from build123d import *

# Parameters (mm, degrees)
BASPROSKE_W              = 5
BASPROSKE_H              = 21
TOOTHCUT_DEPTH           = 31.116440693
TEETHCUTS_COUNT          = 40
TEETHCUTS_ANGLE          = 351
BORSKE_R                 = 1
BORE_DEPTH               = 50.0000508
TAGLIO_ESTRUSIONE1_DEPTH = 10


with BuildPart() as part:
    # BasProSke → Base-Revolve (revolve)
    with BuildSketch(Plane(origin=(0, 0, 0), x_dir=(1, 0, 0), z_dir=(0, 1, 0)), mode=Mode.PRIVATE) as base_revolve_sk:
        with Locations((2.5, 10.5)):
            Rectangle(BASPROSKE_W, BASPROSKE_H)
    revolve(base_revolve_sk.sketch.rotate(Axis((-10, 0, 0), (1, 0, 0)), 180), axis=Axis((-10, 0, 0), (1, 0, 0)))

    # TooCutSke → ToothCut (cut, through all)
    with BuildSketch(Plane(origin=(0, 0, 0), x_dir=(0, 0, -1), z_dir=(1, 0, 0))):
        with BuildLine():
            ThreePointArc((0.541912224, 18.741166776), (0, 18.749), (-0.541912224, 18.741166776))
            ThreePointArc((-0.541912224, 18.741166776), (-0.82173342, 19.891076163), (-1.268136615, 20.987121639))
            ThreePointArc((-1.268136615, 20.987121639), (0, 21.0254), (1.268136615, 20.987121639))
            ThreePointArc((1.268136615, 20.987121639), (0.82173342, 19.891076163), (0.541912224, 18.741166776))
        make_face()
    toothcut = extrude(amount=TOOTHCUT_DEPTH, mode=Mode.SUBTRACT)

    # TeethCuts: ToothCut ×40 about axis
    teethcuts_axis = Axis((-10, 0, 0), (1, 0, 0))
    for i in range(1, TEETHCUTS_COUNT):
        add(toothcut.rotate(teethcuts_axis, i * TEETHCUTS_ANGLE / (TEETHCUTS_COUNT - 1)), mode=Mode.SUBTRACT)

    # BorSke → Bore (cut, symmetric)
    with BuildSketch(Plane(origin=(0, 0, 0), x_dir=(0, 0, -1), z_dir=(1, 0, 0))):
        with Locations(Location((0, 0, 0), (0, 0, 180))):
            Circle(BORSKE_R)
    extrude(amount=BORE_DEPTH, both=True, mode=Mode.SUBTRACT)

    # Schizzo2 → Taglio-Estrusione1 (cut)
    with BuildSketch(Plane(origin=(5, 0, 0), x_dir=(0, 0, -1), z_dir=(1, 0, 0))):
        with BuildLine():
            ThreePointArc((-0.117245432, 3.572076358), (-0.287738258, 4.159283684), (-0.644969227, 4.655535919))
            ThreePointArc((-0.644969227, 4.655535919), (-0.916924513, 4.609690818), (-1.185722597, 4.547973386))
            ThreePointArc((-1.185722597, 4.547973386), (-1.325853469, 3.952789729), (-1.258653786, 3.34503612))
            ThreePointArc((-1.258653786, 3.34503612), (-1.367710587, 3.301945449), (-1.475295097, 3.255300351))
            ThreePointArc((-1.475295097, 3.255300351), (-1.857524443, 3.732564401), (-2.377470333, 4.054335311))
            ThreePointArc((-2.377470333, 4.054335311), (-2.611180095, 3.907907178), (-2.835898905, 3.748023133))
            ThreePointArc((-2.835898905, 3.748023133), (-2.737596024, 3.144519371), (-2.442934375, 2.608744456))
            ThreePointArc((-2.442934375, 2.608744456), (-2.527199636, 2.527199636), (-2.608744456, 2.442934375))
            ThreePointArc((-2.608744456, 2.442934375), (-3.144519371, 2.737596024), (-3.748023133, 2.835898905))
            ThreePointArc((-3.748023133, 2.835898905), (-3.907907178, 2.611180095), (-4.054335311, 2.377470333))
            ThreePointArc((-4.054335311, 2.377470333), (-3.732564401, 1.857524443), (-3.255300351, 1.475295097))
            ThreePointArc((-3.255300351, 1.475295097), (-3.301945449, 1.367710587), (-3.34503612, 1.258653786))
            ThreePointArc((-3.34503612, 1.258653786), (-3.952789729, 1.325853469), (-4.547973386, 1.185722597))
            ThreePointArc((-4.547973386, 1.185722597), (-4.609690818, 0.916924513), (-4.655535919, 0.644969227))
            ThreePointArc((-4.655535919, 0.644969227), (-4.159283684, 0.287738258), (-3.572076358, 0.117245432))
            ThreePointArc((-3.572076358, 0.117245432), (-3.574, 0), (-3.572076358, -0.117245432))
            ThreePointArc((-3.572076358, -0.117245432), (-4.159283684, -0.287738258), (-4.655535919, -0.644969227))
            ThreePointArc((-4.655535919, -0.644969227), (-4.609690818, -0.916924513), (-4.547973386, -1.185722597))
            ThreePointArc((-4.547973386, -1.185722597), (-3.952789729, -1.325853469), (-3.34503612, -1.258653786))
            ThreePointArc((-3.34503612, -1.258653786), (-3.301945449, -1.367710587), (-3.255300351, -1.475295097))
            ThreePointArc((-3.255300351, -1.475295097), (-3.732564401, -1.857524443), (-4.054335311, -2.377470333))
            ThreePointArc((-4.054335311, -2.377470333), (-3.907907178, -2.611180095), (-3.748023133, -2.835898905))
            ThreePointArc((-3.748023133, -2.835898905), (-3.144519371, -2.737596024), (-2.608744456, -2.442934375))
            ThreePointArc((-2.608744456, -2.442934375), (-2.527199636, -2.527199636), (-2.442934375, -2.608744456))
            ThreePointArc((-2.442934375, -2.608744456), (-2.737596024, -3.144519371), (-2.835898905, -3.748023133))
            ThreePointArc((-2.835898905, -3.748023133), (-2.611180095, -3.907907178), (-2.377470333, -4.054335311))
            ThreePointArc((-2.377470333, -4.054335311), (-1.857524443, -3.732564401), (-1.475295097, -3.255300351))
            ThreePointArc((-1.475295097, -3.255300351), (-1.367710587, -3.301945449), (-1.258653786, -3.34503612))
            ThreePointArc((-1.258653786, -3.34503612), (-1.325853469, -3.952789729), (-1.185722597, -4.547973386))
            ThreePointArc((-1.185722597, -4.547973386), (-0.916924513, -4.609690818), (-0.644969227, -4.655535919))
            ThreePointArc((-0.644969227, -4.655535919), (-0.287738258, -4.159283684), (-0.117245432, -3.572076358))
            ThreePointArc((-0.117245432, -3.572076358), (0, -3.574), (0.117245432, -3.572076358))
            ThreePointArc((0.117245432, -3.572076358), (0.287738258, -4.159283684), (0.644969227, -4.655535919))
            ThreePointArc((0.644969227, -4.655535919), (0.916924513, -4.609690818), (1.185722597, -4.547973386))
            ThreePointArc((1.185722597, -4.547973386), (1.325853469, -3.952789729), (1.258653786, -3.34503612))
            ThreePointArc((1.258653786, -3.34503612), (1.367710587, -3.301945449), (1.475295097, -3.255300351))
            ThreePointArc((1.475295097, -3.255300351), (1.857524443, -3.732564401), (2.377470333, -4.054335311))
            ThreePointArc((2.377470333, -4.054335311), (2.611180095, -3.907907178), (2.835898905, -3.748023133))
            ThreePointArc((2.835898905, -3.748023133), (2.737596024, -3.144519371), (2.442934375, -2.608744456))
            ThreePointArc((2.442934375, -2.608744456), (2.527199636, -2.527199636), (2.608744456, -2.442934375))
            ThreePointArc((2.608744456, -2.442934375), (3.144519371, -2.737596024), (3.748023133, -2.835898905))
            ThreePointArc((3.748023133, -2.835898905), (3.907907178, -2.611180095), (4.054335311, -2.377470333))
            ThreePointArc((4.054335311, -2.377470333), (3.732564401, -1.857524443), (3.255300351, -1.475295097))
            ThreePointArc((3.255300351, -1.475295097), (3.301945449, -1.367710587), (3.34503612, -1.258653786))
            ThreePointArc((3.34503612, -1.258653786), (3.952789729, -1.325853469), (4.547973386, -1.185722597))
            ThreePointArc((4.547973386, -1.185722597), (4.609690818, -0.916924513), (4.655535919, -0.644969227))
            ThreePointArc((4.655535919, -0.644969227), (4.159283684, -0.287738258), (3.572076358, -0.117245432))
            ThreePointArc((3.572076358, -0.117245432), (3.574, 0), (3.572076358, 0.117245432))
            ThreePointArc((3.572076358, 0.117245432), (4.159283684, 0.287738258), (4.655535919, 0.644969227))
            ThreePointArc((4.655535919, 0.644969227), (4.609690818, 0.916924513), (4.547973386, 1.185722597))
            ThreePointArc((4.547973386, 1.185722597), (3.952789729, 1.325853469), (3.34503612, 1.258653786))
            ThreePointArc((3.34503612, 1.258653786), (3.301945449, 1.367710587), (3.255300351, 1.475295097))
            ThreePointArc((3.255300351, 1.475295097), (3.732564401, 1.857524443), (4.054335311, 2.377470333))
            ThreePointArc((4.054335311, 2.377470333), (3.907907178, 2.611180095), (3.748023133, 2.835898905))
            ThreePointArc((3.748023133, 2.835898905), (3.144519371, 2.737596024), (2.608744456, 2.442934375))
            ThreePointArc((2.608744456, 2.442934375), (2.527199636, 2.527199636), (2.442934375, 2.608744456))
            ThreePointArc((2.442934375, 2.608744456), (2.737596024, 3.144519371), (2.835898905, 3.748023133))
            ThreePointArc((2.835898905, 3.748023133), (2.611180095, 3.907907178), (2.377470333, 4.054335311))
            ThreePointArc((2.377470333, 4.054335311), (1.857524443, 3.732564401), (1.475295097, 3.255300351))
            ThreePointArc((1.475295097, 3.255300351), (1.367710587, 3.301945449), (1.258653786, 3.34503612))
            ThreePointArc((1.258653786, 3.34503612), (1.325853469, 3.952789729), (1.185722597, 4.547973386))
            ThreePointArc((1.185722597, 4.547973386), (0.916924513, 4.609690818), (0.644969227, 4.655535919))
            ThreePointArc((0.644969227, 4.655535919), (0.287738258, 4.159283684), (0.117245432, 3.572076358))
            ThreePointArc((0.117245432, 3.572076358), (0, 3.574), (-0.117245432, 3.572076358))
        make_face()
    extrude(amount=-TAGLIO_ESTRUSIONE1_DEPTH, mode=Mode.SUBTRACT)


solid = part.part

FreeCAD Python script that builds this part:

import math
import FreeCAD as App
import Part
import Sketcher
from FreeCAD import Vector
Q = App.Units.Quantity


def add_polygon(sketch, points):
    """Adds a closed chain of lines whose ends are joined by coincident constraints."""
    first, n = sketch.GeometryCount, len(points)
    for a, b in zip(points, points[1:] + points[:1]):
        sketch.addGeometry(Part.LineSegment(App.Vector(*a, 0), App.Vector(*b, 0)), False)
    for i in range(n):
        sketch.addConstraint(Sketcher.Constraint("Coincident", first + i, 2, first + (i + 1) % n, 1))

doc = App.newDocument("Part")
params = doc.addObject("Spreadsheet::Sheet", "Params")
for row, (alias, value) in enumerate([
    ("sketch1_width", "5 mm"),
    ("sketch1_height", "21 mm"),
    ("revolution_angle", "360 deg"),
    ("sketch2_radius", "8 mm"),
    ("sketch3_diameter", "2 mm"),
    ("pocket2_length", "100.000102 mm"),
    ("sketch4_radius", "1.8 mm"),
    ("sketch4_radius2", "4.7 mm"),
    ("pocket3_length", "10 mm"),
], start=1):
    params.set(f"A{row}", alias)
    params.set(f"B{row}", "=" + value)
    params.setAlias(f"B{row}", alias)

body = doc.addObject("PartDesign::Body", "Body")

# Sketch on XZ plane
sketch1 = body.newObject("Sketcher::SketchObject", "Sketch")
sketch1.AttachmentSupport = (doc.getObject("XZ_Plane"), [""])
sketch1.MapMode = "FlatFace"
add_polygon(sketch1, [(0, -21), (0, 0), (5, 0), (5, -21)])  # lines 0-3
sketch1.addConstraint([
    Sketcher.Constraint("Vertical", 0),
    Sketcher.Constraint("Horizontal", 1),
    Sketcher.Constraint("Vertical", 2),
    Sketcher.Constraint("Horizontal", 3),
    Sketcher.Constraint("Coincident", 0, 2, -1, 1),
    Sketcher.Constraint("DistanceX", 1, 1, 1, 2, Q("5 mm")),
    Sketcher.Constraint("DistanceY", 0, 1, 0, 2, Q("21 mm")),
])
sketch1.setExpression("Constraints[9]", "Params.sketch1_width")
sketch1.setExpression("Constraints[10]", "Params.sketch1_height")
revolution = body.newObject("PartDesign::Revolution", "Revolution")
revolution.Profile = sketch1
revolution.ReferenceAxis = (sketch1, ["H_Axis"])
revolution.setExpression("Angle", "Params.revolution_angle")

# Sketch on YZ plane
sketch2 = body.newObject("Sketcher::SketchObject", "Sketch001")
sketch2.AttachmentSupport = (doc.getObject("YZ_Plane"), [""])
sketch2.MapMode = "FlatFace"
sketch2.addGeometry([
    Part.ArcOfCircle(Part.Circle(Vector(0, 0, 0), Vector(0, 0, 1), 18.7), math.radians(-1.66), math.radians(1.66)),
    Part.ArcOfCircle(Part.Circle(Vector(17.4, -8.4, 0), Vector(0, 0, 1), 8), math.radians(63.6), math.radians(80.57)),
    Part.ArcOfCircle(Part.Circle(Vector(0, 0, 0), Vector(0, 0, 1), 21), math.radians(-3.46), math.radians(3.46)),
    Part.ArcOfCircle(Part.Circle(Vector(17.4, 8.4, 0), Vector(0, 0, 1), 8), math.radians(-80.57), math.radians(-63.6)),
], False)
sketch2.addConstraint([
    Sketcher.Constraint("Coincident", 0, 1, 1, 2),
    Sketcher.Constraint("Coincident", 1, 1, 2, 1),
    Sketcher.Constraint("Coincident", 2, 2, 3, 2),
    Sketcher.Constraint("Coincident", 3, 1, 0, 2),
    Sketcher.Constraint("Coincident", 0, 3, -1, 1),
    Sketcher.Constraint("Coincident", 2, 3, -1, 1),
    Sketcher.Constraint("Equal", 1, 3),
    Sketcher.Constraint("Symmetric", 1, 3, 3, 3, -1),
    Sketcher.Constraint("Radius", 1, Q("8 mm")),
    Sketcher.Constraint("Radius", 0, Q("18.748999 mm")),
    Sketcher.Constraint("Radius", 2, Q("21.0254 mm")),
    Sketcher.Constraint("DistanceX", 1, 3, 0, 1, Q("1.311401 mm")),
    Sketcher.Constraint("DistanceX", -1, 1, 1, 1, Q("20.987122 mm")),
])
sketch2.setExpression("Constraints[8]", "Params.sketch2_radius")
pocket1 = body.newObject("PartDesign::Pocket", "Pocket")
pocket1.Profile = sketch2
pocket1.Type = "ThroughAll"
pocket1.Reversed = True
doc.recompute()

polarpattern = body.newObject("PartDesign::PolarPattern", "PolarPattern")
polarpattern.Originals = [pocket1]
polarpattern.Axis = (doc.getObject("X_Axis"), [""])
polarpattern.Angle = 360
polarpattern.Occurrences = 40
body.Tip = polarpattern

# Sketch on YZ plane
sketch3 = body.newObject("Sketcher::SketchObject", "Sketch002")
sketch3.AttachmentSupport = (doc.getObject("YZ_Plane"), [""])
sketch3.MapMode = "FlatFace"
sketch3.addGeometry(Part.Circle(Vector(0, 0, 0), Vector(0, 0, 1), 1), False)
sketch3.addConstraint([
    Sketcher.Constraint("Coincident", 0, 3, -1, 1),
    Sketcher.Constraint("Diameter", 0, Q("2 mm")),
])
sketch3.setExpression("Constraints[1]", "Params.sketch3_diameter")
pocket2 = body.newObject("PartDesign::Pocket", "Pocket001")
pocket2.Profile = sketch3
pocket2.setExpression("Length", "Params.pocket2_length")
pocket2.Midplane = True

# Sketch on YZ plane
sketch4 = body.newObject("Sketcher::SketchObject", "Sketch003")
sketch4.AttachmentSupport = (doc.getObject("YZ_Plane"), [""])
sketch4.MapMode = "FlatFace"
sketch4.AttachmentOffset = App.Placement(Vector(0, 0, 5), App.Rotation())
sketch4.addGeometry([
    Part.ArcOfCircle(Part.Circle(Vector(3.37, 1.91, 0), Vector(0, 0, 1), 1.8), math.radians(-84), math.radians(-44)),  # 0
    Part.ArcOfCircle(Part.Circle(Vector(0, 0, 0), Vector(0, 0, 1), 4.7), math.radians(7.89), math.radians(14.61)),  # 1
    Part.ArcOfCircle(Part.Circle(Vector(3.84, -0.47, 0), Vector(0, 0, 1), 1.8), math.radians(67), math.radians(106)),  # 2
    Part.ArcOfCircle(Part.Circle(Vector(0, 0, 0), Vector(0, 0, 1), 3.57), math.radians(20.62), math.radians(24.38)),  # 3
    Part.ArcOfCircle(Part.Circle(Vector(2.39, 3.05, 0), Vector(0, 0, 1), 1.8), math.radians(-61), math.radians(-22)),  # 4
    Part.ArcOfCircle(Part.Circle(Vector(0, 0, 0), Vector(0, 0, 1), 4.7), math.radians(30.39), math.radians(37.11)),  # 5
    Part.ArcOfCircle(Part.Circle(Vector(3.73, 1.04, 0), Vector(0, 0, 1), 1.8), math.radians(89), math.radians(129)),  # 6
    Part.ArcOfCircle(Part.Circle(Vector(0, 0, 0), Vector(0, 0, 1), 3.57), math.radians(43.12), math.radians(46.88)),  # 7
    Part.ArcOfCircle(Part.Circle(Vector(1.04, 3.73, 0), Vector(0, 0, 1), 1.8), math.radians(-39), math.radians(1)),  # 8
    Part.ArcOfCircle(Part.Circle(Vector(0, 0, 0), Vector(0, 0, 1), 4.7), math.radians(52.89), math.radians(59.61)),  # 9
    Part.ArcOfCircle(Part.Circle(Vector(3.05, 2.39, 0), Vector(0, 0, 1), 1.8), math.radians(112), math.radians(151)),  # 10
    Part.ArcOfCircle(Part.Circle(Vector(0, 0, 0), Vector(0, 0, 1), 3.57), math.radians(65.62), math.radians(69.38)),  # 11
    Part.ArcOfCircle(Part.Circle(Vector(-0.47, 3.84, 0), Vector(0, 0, 1), 1.8), math.radians(-16), math.radians(23)),  # 12
    Part.ArcOfCircle(Part.Circle(Vector(0, 0, 0), Vector(0, 0, 1), 4.7), math.radians(75.39), math.radians(82.11)),  # 13
    Part.ArcOfCircle(Part.Circle(Vector(1.91, 3.37, 0), Vector(0, 0, 1), 1.8), math.radians(134), math.radians(174)),  # 14
    Part.ArcOfCircle(Part.Circle(Vector(0, 0, 0), Vector(0, 0, 1), 3.57), math.radians(88.12), math.radians(91.88)),  # 15
    Part.ArcOfCircle(Part.Circle(Vector(-1.91, 3.37, 0), Vector(0, 0, 1), 1.8), math.radians(6), math.radians(46)),  # 16
    Part.ArcOfCircle(Part.Circle(Vector(0, 0, 0), Vector(0, 0, 1), 4.7), math.radians(97.89), math.radians(104.61)),  # 17
    Part.ArcOfCircle(Part.Circle(Vector(0.47, 3.84, 0), Vector(0, 0, 1), 1.8), math.radians(157), math.radians(196)),  # 18
    Part.ArcOfCircle(Part.Circle(Vector(0, 0, 0), Vector(0, 0, 1), 3.57), math.radians(110.62), math.radians(114.38)),  # 19
    Part.ArcOfCircle(Part.Circle(Vector(-3.05, 2.39, 0), Vector(0, 0, 1), 1.8), math.radians(29), math.radians(68)),  # 20
    Part.ArcOfCircle(Part.Circle(Vector(0, 0, 0), Vector(0, 0, 1), 4.7), math.radians(120.39), math.radians(127.11)),  # 21
    Part.ArcOfCircle(Part.Circle(Vector(-1.04, 3.73, 0), Vector(0, 0, 1), 1.8), math.radians(179), math.radians(219)),  # 22
    Part.ArcOfCircle(Part.Circle(Vector(0, 0, 0), Vector(0, 0, 1), 3.57), math.radians(133.12), math.radians(136.88)),  # 23
    Part.ArcOfCircle(Part.Circle(Vector(-3.73, 1.04, 0), Vector(0, 0, 1), 1.8), math.radians(51), math.radians(91)),  # 24
    Part.ArcOfCircle(Part.Circle(Vector(0, 0, 0), Vector(0, 0, 1), 4.7), math.radians(142.89), math.radians(149.61)),  # 25
    Part.ArcOfCircle(Part.Circle(Vector(-2.39, 3.05, 0), Vector(0, 0, 1), 1.8), math.radians(-158), math.radians(-119)),  # 26
    Part.ArcOfCircle(Part.Circle(Vector(0, 0, 0), Vector(0, 0, 1), 3.57), math.radians(155.62), math.radians(159.38)),  # 27
    Part.ArcOfCircle(Part.Circle(Vector(-3.84, -0.47, 0), Vector(0, 0, 1), 1.8), math.radians(74), math.radians(113)),  # 28
    Part.ArcOfCircle(Part.Circle(Vector(0, 0, 0), Vector(0, 0, 1), 4.7), math.radians(165.39), math.radians(172.11)),  # 29
    Part.ArcOfCircle(Part.Circle(Vector(-3.37, 1.91, 0), Vector(0, 0, 1), 1.8), math.radians(-136), math.radians(-96)),  # 30
    Part.ArcOfCircle(Part.Circle(Vector(0, 0, 0), Vector(0, 0, 1), 3.57), math.radians(178.12), math.radians(181.88)),  # 31
    Part.ArcOfCircle(Part.Circle(Vector(-3.37, -1.91, 0), Vector(0, 0, 1), 1.8), math.radians(96), math.radians(136)),  # 32
    Part.ArcOfCircle(Part.Circle(Vector(0, 0, 0), Vector(0, 0, 1), 4.7), math.radians(-172.11), math.radians(-165.39)),  # 33
    Part.ArcOfCircle(Part.Circle(Vector(-3.84, 0.47, 0), Vector(0, 0, 1), 1.8), math.radians(-113), math.radians(-74)),  # 34
    Part.ArcOfCircle(Part.Circle(Vector(0, 0, 0), Vector(0, 0, 1), 3.57), math.radians(-159.38), math.radians(-155.62)),  # 35
    Part.ArcOfCircle(Part.Circle(Vector(-2.39, -3.05, 0), Vector(0, 0, 1), 1.8), math.radians(119), math.radians(158)),  # 36
    Part.ArcOfCircle(Part.Circle(Vector(0, 0, 0), Vector(0, 0, 1), 4.7), math.radians(-149.61), math.radians(-142.89)),  # 37
    Part.ArcOfCircle(Part.Circle(Vector(-3.73, -1.04, 0), Vector(0, 0, 1), 1.8), math.radians(-91), math.radians(-51)),  # 38
    Part.ArcOfCircle(Part.Circle(Vector(0, 0, 0), Vector(0, 0, 1), 3.57), math.radians(-136.88), math.radians(-133.12)),  # 39
    Part.ArcOfCircle(Part.Circle(Vector(-1.04, -3.73, 0), Vector(0, 0, 1), 1.8), math.radians(141), math.radians(181)),  # 40
    Part.ArcOfCircle(Part.Circle(Vector(0, 0, 0), Vector(0, 0, 1), 4.7), math.radians(-127.11), math.radians(-120.39)),  # 41
    Part.ArcOfCircle(Part.Circle(Vector(-3.05, -2.39, 0), Vector(0, 0, 1), 1.8), math.radians(-68), math.radians(-29)),  # 42
    Part.ArcOfCircle(Part.Circle(Vector(0, 0, 0), Vector(0, 0, 1), 3.57), math.radians(-114.38), math.radians(-110.62)),  # 43
    Part.ArcOfCircle(Part.Circle(Vector(0.47, -3.84, 0), Vector(0, 0, 1), 1.8), math.radians(164), math.radians(203)),  # 44
    Part.ArcOfCircle(Part.Circle(Vector(0, 0, 0), Vector(0, 0, 1), 4.7), math.radians(-104.61), math.radians(-97.89)),  # 45
    Part.ArcOfCircle(Part.Circle(Vector(-1.91, -3.37, 0), Vector(0, 0, 1), 1.8), math.radians(-46), math.radians(-6)),  # 46
    Part.ArcOfCircle(Part.Circle(Vector(0, 0, 0), Vector(0, 0, 1), 3.57), math.radians(-91.88), math.radians(-88.12)),  # 47
    Part.ArcOfCircle(Part.Circle(Vector(1.91, -3.37, 0), Vector(0, 0, 1), 1.8), math.radians(-174), math.radians(-134)),  # 48
    Part.ArcOfCircle(Part.Circle(Vector(0, 0, 0), Vector(0, 0, 1), 4.7), math.radians(-82.11), math.radians(-75.39)),  # 49
    Part.ArcOfCircle(Part.Circle(Vector(-0.47, -3.84, 0), Vector(0, 0, 1), 1.8), math.radians(-23), math.radians(16)),  # 50
    Part.ArcOfCircle(Part.Circle(Vector(0, 0, 0), Vector(0, 0, 1), 3.57), math.radians(-69.38), math.radians(-65.62)),  # 51
    Part.ArcOfCircle(Part.Circle(Vector(3.05, -2.39, 0), Vector(0, 0, 1), 1.8), math.radians(-151), math.radians(-112)),  # 52
    Part.ArcOfCircle(Part.Circle(Vector(0, 0, 0), Vector(0, 0, 1), 4.7), math.radians(-59.61), math.radians(-52.89)),  # 53
    Part.ArcOfCircle(Part.Circle(Vector(1.04, -3.73, 0), Vector(0, 0, 1), 1.8), math.radians(-1), math.radians(39)),  # 54
    Part.ArcOfCircle(Part.Circle(Vector(0, 0, 0), Vector(0, 0, 1), 3.57), math.radians(-46.88), math.radians(-43.12)),  # 55
    Part.ArcOfCircle(Part.Circle(Vector(3.73, -1.04, 0), Vector(0, 0, 1), 1.8), math.radians(-129), math.radians(-89)),  # 56
    Part.ArcOfCircle(Part.Circle(Vector(0, 0, 0), Vector(0, 0, 1), 4.7), math.radians(-37.11), math.radians(-30.39)),  # 57
    Part.ArcOfCircle(Part.Circle(Vector(2.39, -3.05, 0), Vector(0, 0, 1), 1.8), math.radians(22), math.radians(61)),  # 58
    Part.ArcOfCircle(Part.Circle(Vector(0, 0, 0), Vector(0, 0, 1), 3.57), math.radians(-24.38), math.radians(-20.62)),  # 59
    Part.ArcOfCircle(Part.Circle(Vector(3.84, 0.47, 0), Vector(0, 0, 1), 1.8), math.radians(-106), math.radians(-67)),  # 60
    Part.ArcOfCircle(Part.Circle(Vector(0, 0, 0), Vector(0, 0, 1), 4.7), math.radians(-14.61), math.radians(-7.89)),  # 61
    Part.ArcOfCircle(Part.Circle(Vector(3.37, -1.91, 0), Vector(0, 0, 1), 1.8), math.radians(44), math.radians(84)),  # 62
    Part.ArcOfCircle(Part.Circle(Vector(0, 0, 0), Vector(0, 0, 1), 3.57), math.radians(-1.88), math.radians(1.88)),  # 63
], False)
sketch4.addConstraint([
    Sketcher.Constraint("Coincident", 0, 2, 1, 1),
    Sketcher.Constraint("Coincident", 1, 2, 2, 1),
    Sketcher.Constraint("Coincident", 2, 2, 3, 1),
    Sketcher.Constraint("Coincident", 3, 2, 4, 1),
    Sketcher.Constraint("Coincident", 4, 2, 5, 1),
    Sketcher.Constraint("Coincident", 5, 2, 6, 1),
    Sketcher.Constraint("Coincident", 6, 2, 7, 1),
    Sketcher.Constraint("Coincident", 7, 2, 8, 1),
    Sketcher.Constraint("Coincident", 8, 2, 9, 1),
    Sketcher.Constraint("Coincident", 9, 2, 10, 1),
    Sketcher.Constraint("Coincident", 10, 2, 11, 1),
    Sketcher.Constraint("Coincident", 11, 2, 12, 1),
    Sketcher.Constraint("Coincident", 12, 2, 13, 1),
    Sketcher.Constraint("Coincident", 13, 2, 14, 1),
    Sketcher.Constraint("Coincident", 14, 2, 15, 1),
    Sketcher.Constraint("Coincident", 15, 2, 16, 1),
    Sketcher.Constraint("Coincident", 16, 2, 17, 1),
    Sketcher.Constraint("Coincident", 17, 2, 18, 1),
    Sketcher.Constraint("Coincident", 18, 2, 19, 1),
    Sketcher.Constraint("Coincident", 19, 2, 20, 1),
    Sketcher.Constraint("Coincident", 20, 2, 21, 1),
    Sketcher.Constraint("Coincident", 21, 2, 22, 1),
    Sketcher.Constraint("Coincident", 22, 2, 23, 1),
    Sketcher.Constraint("Coincident", 23, 2, 24, 1),
    Sketcher.Constraint("Coincident", 24, 2, 25, 1),
    Sketcher.Constraint("Coincident", 25, 2, 26, 1),
    Sketcher.Constraint("Coincident", 26, 2, 27, 1),
    Sketcher.Constraint("Coincident", 27, 2, 28, 1),
    Sketcher.Constraint("Coincident", 28, 2, 29, 1),
    Sketcher.Constraint("Coincident", 29, 2, 30, 1),
    Sketcher.Constraint("Coincident", 30, 2, 31, 1),
    Sketcher.Constraint("Coincident", 31, 2, 32, 1),
    Sketcher.Constraint("Coincident", 32, 2, 33, 1),
    Sketcher.Constraint("Coincident", 33, 2, 34, 1),
    Sketcher.Constraint("Coincident", 34, 2, 35, 1),
    Sketcher.Constraint("Coincident", 35, 2, 36, 1),
    Sketcher.Constraint("Coincident", 36, 2, 37, 1),
    Sketcher.Constraint("Coincident", 37, 2, 38, 1),
    Sketcher.Constraint("Coincident", 38, 2, 39, 1),
    Sketcher.Constraint("Coincident", 39, 2, 40, 1),
    Sketcher.Constraint("Coincident", 40, 2, 41, 1),
    Sketcher.Constraint("Coincident", 41, 2, 42, 1),
    Sketcher.Constraint("Coincident", 42, 2, 43, 1),
    Sketcher.Constraint("Coincident", 43, 2, 44, 1),
    Sketcher.Constraint("Coincident", 44, 2, 45, 1),
    Sketcher.Constraint("Coincident", 45, 2, 46, 1),
    Sketcher.Constraint("Coincident", 46, 2, 47, 1),
    Sketcher.Constraint("Coincident", 47, 2, 48, 1),
    Sketcher.Constraint("Coincident", 48, 2, 49, 1),
    Sketcher.Constraint("Coincident", 49, 2, 50, 1),
    Sketcher.Constraint("Coincident", 50, 2, 51, 1),
    Sketcher.Constraint("Coincident", 51, 2, 52, 1),
    Sketcher.Constraint("Coincident", 52, 2, 53, 1),
    Sketcher.Constraint("Coincident", 53, 2, 54, 1),
    Sketcher.Constraint("Coincident", 54, 2, 55, 1),
    Sketcher.Constraint("Coincident", 55, 2, 56, 1),
    Sketcher.Constraint("Coincident", 56, 2, 57, 1),
    Sketcher.Constraint("Coincident", 57, 2, 58, 1),
    Sketcher.Constraint("Coincident", 58, 2, 59, 1),
    Sketcher.Constraint("Coincident", 59, 2, 60, 1),
    Sketcher.Constraint("Coincident", 60, 2, 61, 1),
    Sketcher.Constraint("Coincident", 61, 2, 62, 1),
    Sketcher.Constraint("Coincident", 62, 2, 63, 1),
    Sketcher.Constraint("Coincident", 63, 2, 0, 1),
    Sketcher.Constraint("Coincident", 1, 3, -1, 1),
    Sketcher.Constraint("Coincident", 3, 3, -1, 1),
    Sketcher.Constraint("Coincident", 5, 3, -1, 1),
    Sketcher.Constraint("Coincident", 7, 3, -1, 1),
    Sketcher.Constraint("Coincident", 9, 3, -1, 1),
    Sketcher.Constraint("Coincident", 11, 3, -1, 1),
    Sketcher.Constraint("Coincident", 13, 3, -1, 1),
    Sketcher.Constraint("Coincident", 15, 3, -1, 1),
    Sketcher.Constraint("Coincident", 17, 3, -1, 1),
    Sketcher.Constraint("Coincident", 19, 3, -1, 1),
    Sketcher.Constraint("Coincident", 21, 3, -1, 1),
    Sketcher.Constraint("Coincident", 23, 3, -1, 1),
    Sketcher.Constraint("Coincident", 25, 3, -1, 1),
    Sketcher.Constraint("Coincident", 27, 3, -1, 1),
    Sketcher.Constraint("Coincident", 29, 3, -1, 1),
    Sketcher.Constraint("Coincident", 31, 3, -1, 1),
    Sketcher.Constraint("Coincident", 33, 3, -1, 1),
    Sketcher.Constraint("Coincident", 35, 3, -1, 1),
    Sketcher.Constraint("Coincident", 37, 3, -1, 1),
    Sketcher.Constraint("Coincident", 39, 3, -1, 1),
    Sketcher.Constraint("Coincident", 41, 3, -1, 1),
    Sketcher.Constraint("Coincident", 43, 3, -1, 1),
    Sketcher.Constraint("Coincident", 45, 3, -1, 1),
    Sketcher.Constraint("Coincident", 47, 3, -1, 1),
    Sketcher.Constraint("Coincident", 49, 3, -1, 1),
    Sketcher.Constraint("Coincident", 51, 3, -1, 1),
    Sketcher.Constraint("Coincident", 53, 3, -1, 1),
    Sketcher.Constraint("Coincident", 55, 3, -1, 1),
    Sketcher.Constraint("Coincident", 57, 3, -1, 1),
    Sketcher.Constraint("Coincident", 59, 3, -1, 1),
    Sketcher.Constraint("Coincident", 61, 3, -1, 1),
    Sketcher.Constraint("Coincident", 63, 3, -1, 1),
    Sketcher.Constraint("Equal", 0, 2),
    Sketcher.Constraint("Equal", 2, 4),
    Sketcher.Constraint("Equal", 1, 5),
    Sketcher.Constraint("Equal", 4, 6),
    Sketcher.Constraint("Equal", 3, 7),
    Sketcher.Constraint("Equal", 6, 8),
    Sketcher.Constraint("Equal", 5, 9),
    Sketcher.Constraint("Equal", 8, 10),
    Sketcher.Constraint("Equal", 7, 11),
    Sketcher.Constraint("Equal", 10, 12),
    Sketcher.Constraint("Equal", 9, 13),
    Sketcher.Constraint("Equal", 12, 14),
    Sketcher.Constraint("Equal", 11, 15),
    Sketcher.Constraint("Equal", 14, 16),
    Sketcher.Constraint("Equal", 13, 17),
    Sketcher.Constraint("Equal", 16, 18),
    Sketcher.Constraint("Equal", 15, 19),
    Sketcher.Constraint("Equal", 18, 20),
    Sketcher.Constraint("Equal", 17, 21),
    Sketcher.Constraint("Equal", 20, 22),
    Sketcher.Constraint("Equal", 19, 23),
    Sketcher.Constraint("Equal", 22, 24),
    Sketcher.Constraint("Equal", 21, 25),
    Sketcher.Constraint("Equal", 24, 26),
    Sketcher.Constraint("Equal", 23, 27),
    Sketcher.Constraint("Equal", 26, 28),
    Sketcher.Constraint("Equal", 25, 29),
    Sketcher.Constraint("Equal", 28, 30),
    Sketcher.Constraint("Equal", 27, 31),
    Sketcher.Constraint("Equal", 30, 32),
    Sketcher.Constraint("Equal", 29, 33),
    Sketcher.Constraint("Equal", 32, 34),
    Sketcher.Constraint("Equal", 31, 35),
    Sketcher.Constraint("Equal", 34, 36),
    Sketcher.Constraint("Equal", 33, 37),
    Sketcher.Constraint("Equal", 36, 38),
    Sketcher.Constraint("Equal", 35, 39),
    Sketcher.Constraint("Equal", 38, 40),
    Sketcher.Constraint("Equal", 37, 41),
    Sketcher.Constraint("Equal", 40, 42),
    Sketcher.Constraint("Equal", 39, 43),
    Sketcher.Constraint("Equal", 42, 44),
    Sketcher.Constraint("Equal", 41, 45),
    Sketcher.Constraint("Equal", 44, 46),
    Sketcher.Constraint("Equal", 43, 47),
    Sketcher.Constraint("Equal", 46, 48),
    Sketcher.Constraint("Equal", 45, 49),
    Sketcher.Constraint("Equal", 48, 50),
    Sketcher.Constraint("Equal", 47, 51),
    Sketcher.Constraint("Equal", 50, 52),
    Sketcher.Constraint("Equal", 49, 53),
    Sketcher.Constraint("Equal", 52, 54),
    Sketcher.Constraint("Equal", 51, 55),
    Sketcher.Constraint("Equal", 54, 56),
    Sketcher.Constraint("Equal", 53, 57),
    Sketcher.Constraint("Equal", 56, 58),
    Sketcher.Constraint("Equal", 55, 59),
    Sketcher.Constraint("Equal", 58, 60),
    Sketcher.Constraint("Equal", 57, 61),
    Sketcher.Constraint("Equal", 60, 62),
    Sketcher.Constraint("Equal", 59, 63),
    Sketcher.Constraint("Symmetric", 0, 3, 32, 3, -1, 1),
    Sketcher.Constraint("Symmetric", 2, 3, 34, 3, -1, 1),
    Sketcher.Constraint("Symmetric", 4, 3, 36, 3, -1, 1),
    Sketcher.Constraint("Symmetric", 6, 3, 38, 3, -1, 1),
    Sketcher.Constraint("Symmetric", 8, 3, 40, 3, -1, 1),
    Sketcher.Constraint("Symmetric", 10, 3, 42, 3, -1, 1),
    Sketcher.Constraint("Symmetric", 12, 3, 44, 3, -1, 1),
    Sketcher.Constraint("Symmetric", 14, 3, 46, 3, -1, 1),
    Sketcher.Constraint("Symmetric", 16, 3, 48, 3, -1, 1),
    Sketcher.Constraint("Symmetric", 18, 3, 50, 3, -1, 1),
    Sketcher.Constraint("Symmetric", 20, 3, 52, 3, -1, 1),
    Sketcher.Constraint("Symmetric", 22, 3, 54, 3, -1, 1),
    Sketcher.Constraint("Symmetric", 24, 3, 56, 3, -1, 1),
    Sketcher.Constraint("Symmetric", 26, 3, 58, 3, -1, 1),
    Sketcher.Constraint("Symmetric", 28, 3, 60, 3, -1, 1),
    Sketcher.Constraint("Symmetric", 30, 3, 62, 3, -1, 1),
    Sketcher.Constraint("Symmetric", 14, 3, 16, 3, -2),
    Sketcher.Constraint("Symmetric", 12, 3, 18, 3, -2),
    Sketcher.Constraint("Symmetric", 10, 3, 20, 3, -2),
    Sketcher.Constraint("Symmetric", 8, 3, 22, 3, -2),
    Sketcher.Constraint("Symmetric", 6, 3, 24, 3, -2),
    Sketcher.Constraint("Symmetric", 4, 3, 26, 3, -2),
    Sketcher.Constraint("Symmetric", 2, 3, 28, 3, -2),
    Sketcher.Constraint("Symmetric", 0, 3, 30, 3, -2),
    Sketcher.Constraint("Radius", 0, Q("1.8 mm")),
    Sketcher.Constraint("Radius", 1, Q("4.7 mm")),
    Sketcher.Constraint("Radius", 3, Q("3.574 mm")),
    Sketcher.Constraint("DistanceX", -1, 1, 3, 2, Q("3.2553 mm")),
    Sketcher.Constraint("DistanceY", -1, 1, 5, 2, Q("2.835899 mm")),
    Sketcher.Constraint("DistanceX", -1, 1, 8, 2, Q("2.835899 mm")),
    Sketcher.Constraint("DistanceY", -1, 1, 10, 2, Q("3.2553 mm")),
    Sketcher.Constraint("DistanceX", -1, 1, 0, 3, Q("3.371078 mm")),
    Sketcher.Constraint("DistanceX", -1, 1, 2, 3, Q("3.84386 mm")),
    Sketcher.Constraint("DistanceX", -1, 1, 4, 3, Q("2.38508 mm")),
    Sketcher.Constraint("DistanceX", -1, 1, 6, 3, Q("3.731449 mm")),
    Sketcher.Constraint("DistanceY", -1, 1, 8, 3, Q("3.731449 mm")),
    Sketcher.Constraint("DistanceX", -1, 1, 10, 3, Q("3.050959 mm")),
    Sketcher.Constraint("DistanceY", -1, 1, 12, 3, Q("3.84386 mm")),
    Sketcher.Constraint("DistanceY", -1, 1, 14, 3, Q("3.371078 mm")),
    Sketcher.Constraint("DistanceY", -1, 1, 0, 2, Q("0.644969 mm")),
    Sketcher.Constraint("DistanceX", -1, 1, 13, 2, Q("0.644969 mm")),
    Sketcher.Constraint("DistanceY", 2, 3, -1, 1, Q("0.470847 mm")),
    Sketcher.Constraint("DistanceX", 12, 3, -1, 1, Q("0.470847 mm")),
])
sketch4.setExpression("Constraints[181]", "Params.sketch4_radius")
sketch4.setExpression("Constraints[182]", "Params.sketch4_radius2")
pocket3 = body.newObject("PartDesign::Pocket", "Pocket002")
pocket3.Profile = sketch4
pocket3.setExpression("Length", "Params.pocket3_length")

doc.recompute()
